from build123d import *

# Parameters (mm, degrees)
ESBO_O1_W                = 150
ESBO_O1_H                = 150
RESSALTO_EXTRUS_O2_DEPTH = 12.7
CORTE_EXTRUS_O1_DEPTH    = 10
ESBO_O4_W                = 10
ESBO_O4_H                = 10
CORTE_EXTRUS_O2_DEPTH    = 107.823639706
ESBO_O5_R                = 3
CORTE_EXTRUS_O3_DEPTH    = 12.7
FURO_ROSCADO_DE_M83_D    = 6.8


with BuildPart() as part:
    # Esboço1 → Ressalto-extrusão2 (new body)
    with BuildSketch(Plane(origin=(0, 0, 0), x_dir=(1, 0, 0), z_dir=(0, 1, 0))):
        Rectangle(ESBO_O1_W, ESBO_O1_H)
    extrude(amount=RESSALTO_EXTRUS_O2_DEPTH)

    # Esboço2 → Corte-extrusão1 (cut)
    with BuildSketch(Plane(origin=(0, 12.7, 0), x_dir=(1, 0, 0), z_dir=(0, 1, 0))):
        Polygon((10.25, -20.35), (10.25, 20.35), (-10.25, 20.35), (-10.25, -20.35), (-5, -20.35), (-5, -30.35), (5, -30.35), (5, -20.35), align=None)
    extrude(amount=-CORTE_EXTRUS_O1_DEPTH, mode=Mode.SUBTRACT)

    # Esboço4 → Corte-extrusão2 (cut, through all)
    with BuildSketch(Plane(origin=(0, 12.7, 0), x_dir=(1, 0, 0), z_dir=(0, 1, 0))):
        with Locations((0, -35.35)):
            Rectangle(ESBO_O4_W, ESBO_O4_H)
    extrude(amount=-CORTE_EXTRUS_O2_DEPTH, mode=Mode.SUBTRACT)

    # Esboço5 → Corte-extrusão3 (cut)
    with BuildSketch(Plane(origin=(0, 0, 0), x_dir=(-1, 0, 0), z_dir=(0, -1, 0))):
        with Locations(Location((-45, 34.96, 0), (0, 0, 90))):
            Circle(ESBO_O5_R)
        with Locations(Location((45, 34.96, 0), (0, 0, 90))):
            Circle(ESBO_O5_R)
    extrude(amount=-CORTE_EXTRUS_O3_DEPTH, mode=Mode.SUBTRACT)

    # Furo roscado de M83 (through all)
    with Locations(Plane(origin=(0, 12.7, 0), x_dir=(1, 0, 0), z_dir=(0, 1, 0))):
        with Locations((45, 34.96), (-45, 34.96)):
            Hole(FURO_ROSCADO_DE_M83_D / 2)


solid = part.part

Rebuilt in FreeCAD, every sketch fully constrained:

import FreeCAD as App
import Part
import Sketcher

V = App.Vector


def add_polygon(sketch, points):
    """Adds a closed chain of lines whose ends are joined by coincident constraints."""
    first, n = sketch.GeometryCount, len(points)
    for a, b in zip(points, points[1:] + points[:1]):
        sketch.addGeometry(Part.LineSegment(App.Vector(*a, 0), App.Vector(*b, 0)), False)
    for i in range(n):
        sketch.addConstraint(Sketcher.Constraint("Coincident", first + i, 2, first + (i + 1) % n, 1))

doc = App.newDocument("Part")
body = doc.addObject("PartDesign::Body", "Body")

sketch1 = body.newObject("Sketcher::SketchObject", "Sketch")
sketch1.AttachmentSupport = (doc.getObject("XZ_Plane"), [""])
sketch1.MapMode = "FlatFace"
add_polygon(sketch1, [(-75, -75), (-75, 75), (75, 75), (75, -75)])
sketch1.addConstraint([
    Sketcher.Constraint("Vertical", 0),
    Sketcher.Constraint("Horizontal", 1),
    Sketcher.Constraint("Vertical", 2),
    Sketcher.Constraint("Horizontal", 3),
    Sketcher.Constraint("Symmetric", 0, 2, 2, 2, -1, 1),
    Sketcher.Constraint("Equal", 3, 0),
    Sketcher.Constraint("DistanceX", 1, 1, 1, 2, 150.0),
])
pad1 = body.newObject("PartDesign::Pad", "Pad")
pad1.Profile = sketch1
pad1.Length = 12.7
pad1.Reversed = True

sketch2 = body.newObject("Sketcher::SketchObject", "Sketch001")
sketch2.AttachmentSupport = (doc.getObject("XZ_Plane"), [""])
sketch2.MapMode = "FlatFace"
sketch2.AttachmentOffset = App.Placement(V(0, 0, -12.7), App.Rotation())
add_polygon(sketch2, [(10, 20), (10, -20), (-10, -20), (-10, 20), (-5, 20), (-5, 30), (5, 30), (5, 20)])
sketch2.addConstraint([
    Sketcher.Constraint("Vertical", 0),
    Sketcher.Constraint("Horizontal", 1),
    Sketcher.Constraint("Vertical", 2),
    Sketcher.Constraint("Horizontal", 3),
    Sketcher.Constraint("Vertical", 4),
    Sketcher.Constraint("Horizontal", 5),
    Sketcher.Constraint("Vertical", 6),
    Sketcher.Constraint("Horizontal", 7),
    Sketcher.Constraint("Symmetric", 0, 2, 2, 2, -1, 1),
    Sketcher.Constraint("Symmetric", 3, 2, 6, 2, -2),
    Sketcher.Constraint("Equal", 5, 4),
    Sketcher.Constraint("DistanceX", 5, 1, 5, 2, 10.0),
    Sketcher.Constraint("DistanceX", 1, 2, 1, 1, 20.5),
    Sketcher.Constraint("DistanceY", 0, 2, 0, 1, 40.7),
])
pocket1 = body.newObject("PartDesign::Pocket", "Pocket")
pocket1.Profile = sketch2
pocket1.Length = 10
pocket1.Reversed = True

sketch3 = body.newObject("Sketcher::SketchObject", "Sketch002")
sketch3.AttachmentSupport = (doc.getObject("XZ_Plane"), [""])
sketch3.MapMode = "FlatFace"
sketch3.AttachmentOffset = App.Placement(V(0, 0, -12.7), App.Rotation())
add_polygon(sketch3, [(-5, 30), (-5, 40), (5, 40), (5, 30)])
sketch3.addConstraint([
    Sketcher.Constraint("Vertical", 0),
    Sketcher.Constraint("Horizontal", 1),
    Sketcher.Constraint("Vertical", 2),
    Sketcher.Constraint("Horizontal", 3),
    Sketcher.Constraint("Equal", 3, 0),
    Sketcher.Constraint("DistanceX", 1, 1, 1, 2, 10.0),
    Sketcher.Constraint("DistanceX", 0, 2, -1, 1, 5.0),
    Sketcher.Constraint("DistanceY", -1, 1, 0, 2, 40.35),
])
pocket2 = body.newObject("PartDesign::Pocket", "Pocket001")
pocket2.Profile = sketch3
pocket2.Type = "ThroughAll"
pocket2.Reversed = True

sketch4 = body.newObject("Sketcher::SketchObject", "Sketch003")
sketch4.AttachmentSupport = (doc.getObject("XZ_Plane"), [""])
sketch4.MapMode = "FlatFace"
sketch4.addGeometry([
    Part.Circle(V(45, -35, 0), V(0, 0, 1), 3),
    Part.Circle(V(-45, -35, 0), V(0, 0, 1), 3),
], False)
sketch4.addConstraint([
    Sketcher.Constraint("Equal", 0, 1),
    Sketcher.Constraint("Symmetric", 0, 3, 1, 3, -2),
    Sketcher.Constraint("Diameter", 0, 6.0),
    Sketcher.Constraint("DistanceX", -1, 1, 0, 3, 45.0),
    Sketcher.Constraint("DistanceY", 0, 3, -1, 1, 34.96),
])
pocket3 = body.newObject("PartDesign::Pocket", "Pocket002")
pocket3.Profile = sketch4
pocket3.Length = 12.7

sketch5 = body.newObject("Sketcher::SketchObject", "Sketch004")
sketch5.AttachmentSupport = (doc.getObject("XZ_Plane"), [""])
sketch5.MapMode = "FlatFace"
sketch5.AttachmentOffset = App.Placement(V(0, 0, -12.7), App.Rotation())
sketch5.addGeometry([
    Part.Circle(V(45, -35, 0), V(0, 0, 1), 3.4),
    Part.Circle(V(-45, -35, 0), V(0, 0, 1), 3.4),
], False)
sketch5.addConstraint([
    Sketcher.Constraint("Equal", 0, 1),
    Sketcher.Constraint("Symmetric", 0, 3, 1, 3, -2),
    Sketcher.Constraint("Diameter", 0, 6.8),
    Sketcher.Constraint("DistanceX", -1, 1, 0, 3, 45.0),
    Sketcher.Constraint("DistanceY", 0, 3, -1, 1, 34.96),
])
doc.recompute()
hole = body.newObject("PartDesign::Hole", "Hole")
hole.Profile = sketch5
hole.ThreadType = "None"
hole.Diameter = 6.8
hole.DepthType = "ThroughAll"
hole.Reversed = True

doc.recompute()
